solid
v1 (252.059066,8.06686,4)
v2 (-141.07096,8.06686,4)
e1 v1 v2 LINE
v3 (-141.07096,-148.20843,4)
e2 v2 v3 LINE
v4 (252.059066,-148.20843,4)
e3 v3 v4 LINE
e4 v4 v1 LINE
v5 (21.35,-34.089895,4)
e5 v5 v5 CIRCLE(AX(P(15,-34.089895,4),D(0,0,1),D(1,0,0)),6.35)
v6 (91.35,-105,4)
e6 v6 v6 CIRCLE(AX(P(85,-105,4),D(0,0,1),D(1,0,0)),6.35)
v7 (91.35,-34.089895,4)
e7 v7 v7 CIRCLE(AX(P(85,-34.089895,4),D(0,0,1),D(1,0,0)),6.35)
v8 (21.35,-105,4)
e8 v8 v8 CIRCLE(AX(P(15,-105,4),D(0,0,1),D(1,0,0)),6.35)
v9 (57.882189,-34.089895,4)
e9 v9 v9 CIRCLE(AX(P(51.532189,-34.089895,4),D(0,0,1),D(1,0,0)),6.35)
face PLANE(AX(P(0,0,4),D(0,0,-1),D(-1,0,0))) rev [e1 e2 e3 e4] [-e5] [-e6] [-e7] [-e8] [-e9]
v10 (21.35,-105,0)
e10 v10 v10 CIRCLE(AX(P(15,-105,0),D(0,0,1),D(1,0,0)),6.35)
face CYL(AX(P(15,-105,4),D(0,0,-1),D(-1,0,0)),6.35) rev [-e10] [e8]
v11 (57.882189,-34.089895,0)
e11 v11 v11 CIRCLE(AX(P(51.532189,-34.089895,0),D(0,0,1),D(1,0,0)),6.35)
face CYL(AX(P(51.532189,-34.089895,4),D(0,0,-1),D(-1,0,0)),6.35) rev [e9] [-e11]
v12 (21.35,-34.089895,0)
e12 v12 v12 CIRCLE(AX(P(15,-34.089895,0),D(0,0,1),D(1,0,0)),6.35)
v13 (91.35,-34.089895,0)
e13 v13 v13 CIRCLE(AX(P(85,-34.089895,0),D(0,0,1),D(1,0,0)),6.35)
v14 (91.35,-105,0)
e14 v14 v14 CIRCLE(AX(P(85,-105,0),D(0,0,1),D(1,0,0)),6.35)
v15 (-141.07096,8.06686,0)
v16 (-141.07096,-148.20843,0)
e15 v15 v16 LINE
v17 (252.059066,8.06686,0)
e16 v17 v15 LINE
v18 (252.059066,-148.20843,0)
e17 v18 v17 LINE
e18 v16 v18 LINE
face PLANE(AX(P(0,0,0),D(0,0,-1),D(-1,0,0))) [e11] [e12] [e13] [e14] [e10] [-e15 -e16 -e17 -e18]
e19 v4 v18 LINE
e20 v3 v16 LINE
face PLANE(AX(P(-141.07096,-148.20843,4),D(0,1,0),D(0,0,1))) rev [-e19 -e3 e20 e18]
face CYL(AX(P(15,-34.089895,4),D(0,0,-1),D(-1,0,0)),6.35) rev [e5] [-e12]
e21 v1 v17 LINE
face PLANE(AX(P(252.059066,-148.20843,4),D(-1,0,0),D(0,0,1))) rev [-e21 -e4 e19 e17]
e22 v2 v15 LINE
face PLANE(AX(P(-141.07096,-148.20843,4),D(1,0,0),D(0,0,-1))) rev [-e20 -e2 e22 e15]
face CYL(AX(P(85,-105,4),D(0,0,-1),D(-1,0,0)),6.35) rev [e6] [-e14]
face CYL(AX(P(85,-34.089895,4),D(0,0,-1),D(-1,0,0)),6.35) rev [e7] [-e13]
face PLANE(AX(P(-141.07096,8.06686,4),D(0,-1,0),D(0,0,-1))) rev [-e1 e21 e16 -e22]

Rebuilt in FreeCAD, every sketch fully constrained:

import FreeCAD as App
import Part
import Sketcher
Q = App.Units.Quantity

doc = App.newDocument("Part")
params = doc.addObject("Spreadsheet::Sheet", "Params")
for row, (alias, value) in enumerate([
    ("sketch1_diameter", "12.7 mm"),
    ("pad1_length", "4 mm"),
], start=1):
    params.set(f"A{row}", alias)
    params.set(f"B{row}", "=" + value)
    params.setAlias(f"B{row}", alias)

body = doc.addObject("PartDesign::Body", "Body")

sketch1 = body.newObject("Sketcher::SketchObject", "Sketch")
sketch1.AttachmentSupport = (doc.getObject("XY_Plane"), [""])
sketch1.MapMode = "FlatFace"
sketch1.addGeometry([
    Part.LineSegment(App.Vector(-141, 8, 0), App.Vector(-141, -148, 0)),
    Part.LineSegment(App.Vector(-141, -148, 0), App.Vector(252, -148, 0)),
    Part.LineSegment(App.Vector(252, -148, 0), App.Vector(252, 8, 0)),
    Part.LineSegment(App.Vector(252, 8, 0), App.Vector(-141, 8, 0)),
    Part.Circle(App.Vector(15, -105, 0), App.Vector(0, 0, 1), 6),
    Part.Circle(App.Vector(85, -105, 0), App.Vector(0, 0, 1), 6),
    Part.Circle(App.Vector(15, -34, 0), App.Vector(0, 0, 1), 6),
    Part.Circle(App.Vector(52, -34, 0), App.Vector(0, 0, 1), 6),
    Part.Circle(App.Vector(85, -34, 0), App.Vector(0, 0, 1), 6),
], False)
sketch1.addConstraint([
    Sketcher.Constraint("Coincident", 0, 2, 1, 1),
    Sketcher.Constraint("Coincident", 1, 2, 2, 1),
    Sketcher.Constraint("Coincident", 2, 2, 3, 1),
    Sketcher.Constraint("Coincident", 3, 2, 0, 1),
    Sketcher.Constraint("Vertical", 0),
    Sketcher.Constraint("Horizontal", 1),
    Sketcher.Constraint("Vertical", 2),
    Sketcher.Constraint("Horizontal", 3),
    Sketcher.Constraint("Equal", 4, 5),
    Sketcher.Constraint("Equal", 5, 6),
    Sketcher.Constraint("Equal", 6, 7),
    Sketcher.Constraint("Equal", 7, 8),
    Sketcher.Constraint("Horizontal", 4, 3, 5, 3),
    Sketcher.Constraint("Horizontal", 6, 3, 7, 3),
    Sketcher.Constraint("Horizontal", 7, 3, 8, 3),
    Sketcher.Constraint("Vertical", 4, 3, 6, 3),
    Sketcher.Constraint("Vertical", 5, 3, 8, 3),
    Sketcher.Constraint("Diameter", 4, Q("12.7 mm")),
    Sketcher.Constraint("DistanceX", -1, 1, 4, 3, Q("15 mm")),
    Sketcher.Constraint("DistanceY", 4, 3, -1, 1, Q("105 mm")),
    Sketcher.Constraint("DistanceX", -1, 1, 5, 3, Q("85 mm")),
    Sketcher.Constraint("DistanceY", 0, 2, 0, 1, Q("156.27529 mm")),
    Sketcher.Constraint("DistanceX", 1, 1, 1, 2, Q("393.130026 mm")),
    Sketcher.Constraint("DistanceX", -1, 1, 7, 3, Q("51.532189 mm")),
    Sketcher.Constraint("DistanceX", 0, 2, -1, 1, Q("141.07096 mm")),
    Sketcher.Constraint("DistanceY", 0, 2, -1, 1, Q("148.20843 mm")),
    Sketcher.Constraint("DistanceY", 6, 3, -1, 1, Q("34.089895 mm")),
])
sketch1.setExpression("Constraints[17]", "Params.sketch1_diameter")
pad1 = body.newObject("PartDesign::Pad", "Pad")
pad1.Profile = sketch1
pad1.setExpression("Length", "Params.pad1_length")

doc.recompute()
